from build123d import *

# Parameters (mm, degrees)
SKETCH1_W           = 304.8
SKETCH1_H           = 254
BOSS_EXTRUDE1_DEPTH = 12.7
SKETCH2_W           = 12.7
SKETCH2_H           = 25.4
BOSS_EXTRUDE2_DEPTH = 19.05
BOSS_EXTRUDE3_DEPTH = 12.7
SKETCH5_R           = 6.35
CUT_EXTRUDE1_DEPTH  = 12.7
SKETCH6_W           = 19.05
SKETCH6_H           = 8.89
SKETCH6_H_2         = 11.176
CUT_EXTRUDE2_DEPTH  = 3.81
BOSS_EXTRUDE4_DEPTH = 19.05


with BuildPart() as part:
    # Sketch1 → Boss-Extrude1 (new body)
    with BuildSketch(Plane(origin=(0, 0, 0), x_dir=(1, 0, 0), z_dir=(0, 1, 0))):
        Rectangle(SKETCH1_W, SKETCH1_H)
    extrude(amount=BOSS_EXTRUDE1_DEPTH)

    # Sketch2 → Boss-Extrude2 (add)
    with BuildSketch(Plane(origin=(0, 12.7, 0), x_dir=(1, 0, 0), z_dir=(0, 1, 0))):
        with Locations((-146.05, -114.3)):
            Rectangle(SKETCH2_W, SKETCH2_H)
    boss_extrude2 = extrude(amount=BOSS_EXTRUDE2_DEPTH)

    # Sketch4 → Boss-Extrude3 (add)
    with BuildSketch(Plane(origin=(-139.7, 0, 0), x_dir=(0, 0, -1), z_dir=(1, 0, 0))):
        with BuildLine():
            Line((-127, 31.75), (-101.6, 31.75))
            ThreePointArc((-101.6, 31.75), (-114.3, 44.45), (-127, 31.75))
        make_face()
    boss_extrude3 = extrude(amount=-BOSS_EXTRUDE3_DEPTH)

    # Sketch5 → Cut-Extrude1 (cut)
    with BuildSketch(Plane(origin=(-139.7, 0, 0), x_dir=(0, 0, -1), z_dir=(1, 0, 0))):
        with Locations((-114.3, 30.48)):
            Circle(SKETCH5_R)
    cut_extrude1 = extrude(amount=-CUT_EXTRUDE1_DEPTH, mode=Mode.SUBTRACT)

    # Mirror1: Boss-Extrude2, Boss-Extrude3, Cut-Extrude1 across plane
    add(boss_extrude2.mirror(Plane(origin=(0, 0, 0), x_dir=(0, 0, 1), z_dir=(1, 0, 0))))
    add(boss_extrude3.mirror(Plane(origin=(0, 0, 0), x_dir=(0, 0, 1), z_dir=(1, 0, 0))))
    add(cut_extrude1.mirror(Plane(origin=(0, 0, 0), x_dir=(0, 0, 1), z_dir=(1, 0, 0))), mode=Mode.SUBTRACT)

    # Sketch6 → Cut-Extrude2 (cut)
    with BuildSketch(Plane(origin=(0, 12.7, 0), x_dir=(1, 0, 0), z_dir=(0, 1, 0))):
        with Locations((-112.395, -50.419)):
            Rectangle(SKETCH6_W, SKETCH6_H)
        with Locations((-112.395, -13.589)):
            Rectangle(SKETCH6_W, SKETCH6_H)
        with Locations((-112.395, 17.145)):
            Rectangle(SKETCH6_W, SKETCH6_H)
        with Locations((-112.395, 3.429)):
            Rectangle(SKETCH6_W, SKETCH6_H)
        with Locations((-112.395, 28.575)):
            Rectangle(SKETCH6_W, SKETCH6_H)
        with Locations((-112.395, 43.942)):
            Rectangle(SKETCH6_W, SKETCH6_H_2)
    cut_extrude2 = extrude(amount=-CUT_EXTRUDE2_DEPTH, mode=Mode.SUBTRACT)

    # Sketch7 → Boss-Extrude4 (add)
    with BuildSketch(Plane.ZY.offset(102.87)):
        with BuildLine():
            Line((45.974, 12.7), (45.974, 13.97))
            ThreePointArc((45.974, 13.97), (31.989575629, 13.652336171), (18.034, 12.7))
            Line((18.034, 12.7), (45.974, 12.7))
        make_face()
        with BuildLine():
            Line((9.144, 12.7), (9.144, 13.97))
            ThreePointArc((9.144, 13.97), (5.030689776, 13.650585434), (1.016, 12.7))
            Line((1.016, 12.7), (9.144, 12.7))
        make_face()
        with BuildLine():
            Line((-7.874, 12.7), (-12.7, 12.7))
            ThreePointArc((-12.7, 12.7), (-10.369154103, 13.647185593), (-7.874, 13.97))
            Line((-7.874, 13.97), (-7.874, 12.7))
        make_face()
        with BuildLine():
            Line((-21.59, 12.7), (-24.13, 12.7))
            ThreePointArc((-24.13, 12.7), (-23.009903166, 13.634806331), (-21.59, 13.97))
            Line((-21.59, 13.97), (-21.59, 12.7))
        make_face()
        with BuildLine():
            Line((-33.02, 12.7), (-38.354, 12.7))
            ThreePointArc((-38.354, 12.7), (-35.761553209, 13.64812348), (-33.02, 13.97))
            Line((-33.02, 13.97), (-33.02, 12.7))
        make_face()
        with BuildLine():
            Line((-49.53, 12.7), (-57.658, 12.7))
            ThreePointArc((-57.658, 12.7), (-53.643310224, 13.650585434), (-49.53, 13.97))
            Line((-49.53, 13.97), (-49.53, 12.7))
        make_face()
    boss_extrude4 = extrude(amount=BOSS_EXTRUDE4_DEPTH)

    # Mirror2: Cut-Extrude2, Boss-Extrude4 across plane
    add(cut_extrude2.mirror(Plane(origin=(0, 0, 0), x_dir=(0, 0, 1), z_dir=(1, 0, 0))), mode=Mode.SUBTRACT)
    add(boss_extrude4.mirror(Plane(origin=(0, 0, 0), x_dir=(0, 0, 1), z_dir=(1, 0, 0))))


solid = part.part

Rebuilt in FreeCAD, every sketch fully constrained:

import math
import FreeCAD as App
import Part
import Sketcher

V = App.Vector
Q = App.Units.Quantity

doc = App.newDocument("Part")
params = doc.addObject("Spreadsheet::Sheet", "Params")
for row, (alias, value) in enumerate([
    ("sketch1_width", "12 in"),
    ("sketch1_height", "10 in"),
    ("pad1_length", "0.5 in"),
    ("sketch2_height", "1 in"),
    ("sketch2_width", "0.5 in"),
    ("pad2_length", "0.75 in"),
    ("sketch3_radius", "0.5 in"),
    ("pad3_length", "0.5 in"),
    ("sketch4_diameter", "0.5 in"),
    ("pocket1_length", "0.5 in"),
    ("sketch5_width", "0.75 in"),
    ("sketch5_height", "0.35 in"),
    ("sketch5_height2", "0.44 in"),
    ("pocket2_length", "0.15 in"),
    ("sketch6_height", "1.1 in"),
    ("sketch6_height2", "0.1 in"),
    ("sketch6_radius", "12.125 in"),
    ("sketch6_radius2", "1.049 in"),
    ("sketch6_radius3", "0.386 in"),
    ("pad4_length", "0.75 in"),
], start=1):
    params.set(f"A{row}", alias)
    params.set(f"B{row}", "=" + value)
    params.setAlias(f"B{row}", alias)

body = doc.addObject("PartDesign::Body", "Body")

sketch1 = body.newObject("Sketcher::SketchObject", "Sketch")
sketch1.AttachmentSupport = (doc.getObject("XZ_Plane"), [""])
sketch1.MapMode = "FlatFace"
sketch1.addGeometry(Part.LineSegment(V(-152.4, -127, 0), V(-152.4, 127, 0)), False)
sketch1.addGeometry(Part.LineSegment(V(-152.4, 127, 0), V(152.4, 127, 0)), False)
sketch1.addGeometry(Part.LineSegment(V(152.4, 127, 0), V(152.4, -127, 0)), False)
sketch1.addGeometry(Part.LineSegment(V(152.4, -127, 0), V(-152.4, -127, 0)), False)
sketch1.addConstraint(Sketcher.Constraint("Coincident", 0, 2, 1, 1))
sketch1.addConstraint(Sketcher.Constraint("Coincident", 1, 2, 2, 1))
sketch1.addConstraint(Sketcher.Constraint("Coincident", 2, 2, 3, 1))
sketch1.addConstraint(Sketcher.Constraint("Coincident", 3, 2, 0, 1))
sketch1.addConstraint(Sketcher.Constraint("Vertical", 0))
sketch1.addConstraint(Sketcher.Constraint("Horizontal", 1))
sketch1.addConstraint(Sketcher.Constraint("Vertical", 2))
sketch1.addConstraint(Sketcher.Constraint("Horizontal", 3))
sketch1.addConstraint(Sketcher.Constraint("Symmetric", 0, 2, 2, 2, -1, 1))
sketch1.addConstraint(Sketcher.Constraint("DistanceX", 1, 1, 1, 2, Q("12 in")))
sketch1.addConstraint(Sketcher.Constraint("DistanceY", 0, 1, 0, 2, Q("10 in")))
sketch1.setExpression("Constraints[9]", "Params.sketch1_width")
sketch1.setExpression("Constraints[10]", "Params.sketch1_height")
pad1 = body.newObject("PartDesign::Pad", "Pad")
pad1.Profile = sketch1
pad1.setExpression("Length", "Params.pad1_length")
pad1.Reversed = True

sketch2 = body.newObject("Sketcher::SketchObject", "Sketch001")
sketch2.AttachmentSupport = (doc.getObject("XZ_Plane"), [""])
sketch2.MapMode = "FlatFace"
sketch2.AttachmentOffset = App.Placement(V(0, 0, -0.5 * 25.4), App.Rotation())
sketch2.addGeometry(Part.LineSegment(V(-152.4, 101.6, 0), V(-152.4, 127, 0)), False)
sketch2.addGeometry(Part.LineSegment(V(-152.4, 127, 0), V(-139.7, 127, 0)), False)
sketch2.addGeometry(Part.LineSegment(V(-139.7, 127, 0), V(-139.7, 101.6, 0)), False)
sketch2.addGeometry(Part.LineSegment(V(-139.7, 101.6, 0), V(-152.4, 101.6, 0)), False)
sketch2.addConstraint(Sketcher.Constraint("Coincident", 0, 2, 1, 1))
sketch2.addConstraint(Sketcher.Constraint("Coincident", 1, 2, 2, 1))
sketch2.addConstraint(Sketcher.Constraint("Coincident", 2, 2, 3, 1))
sketch2.addConstraint(Sketcher.Constraint("Coincident", 3, 2, 0, 1))
sketch2.addConstraint(Sketcher.Constraint("Vertical", 0))
sketch2.addConstraint(Sketcher.Constraint("Horizontal", 1))
sketch2.addConstraint(Sketcher.Constraint("Vertical", 2))
sketch2.addConstraint(Sketcher.Constraint("Horizontal", 3))
sketch2.addConstraint(Sketcher.Constraint("DistanceY", 0, 1, 0, 2, Q("1 in")))
sketch2.addConstraint(Sketcher.Constraint("DistanceX", 1, 1, 1, 2, Q("0.5 in")))
sketch2.addConstraint(Sketcher.Constraint("DistanceX", 0, 2, -1, 1, Q("6 in")))
sketch2.addConstraint(Sketcher.Constraint("DistanceY", -1, 1, 0, 2, Q("5 in")))
sketch2.setExpression("Constraints[8]", "Params.sketch2_height")
sketch2.setExpression("Constraints[9]", "Params.sketch2_width")
pad2 = body.newObject("PartDesign::Pad", "Pad001")
pad2.Profile = sketch2
pad2.setExpression("Length", "Params.pad2_length")
pad2.Reversed = True

sketch3 = body.newObject("Sketcher::SketchObject", "Sketch002")
sketch3.AttachmentSupport = (doc.getObject("YZ_Plane"), [""])
sketch3.MapMode = "FlatFace"
sketch3.AttachmentOffset = App.Placement(V(0, 0, -5.5 * 25.4), App.Rotation())
sketch3.addGeometry(Part.LineSegment(V(31.75, 127, 0), V(31.75, 101.6, 0)), False)
sketch3.addGeometry(Part.ArcOfCircle(Part.Circle(V(31.75, 114.3, 0), V(0, 0, 1), 12.7), math.radians(-90), math.radians(90)), False)
sketch3.addConstraint(Sketcher.Constraint("Coincident", 0, 1, 1, 2))
sketch3.addConstraint(Sketcher.Constraint("Coincident", 1, 1, 0, 2))
sketch3.addConstraint(Sketcher.Constraint("Vertical", 0))
sketch3.addConstraint(Sketcher.Constraint("Vertical", 1, 3, 0, 1))
sketch3.addConstraint(Sketcher.Constraint("Radius", 1, Q("0.5 in")))
sketch3.addConstraint(Sketcher.Constraint("DistanceY", -1, 1, 0, 1, Q("5 in")))
sketch3.addConstraint(Sketcher.Constraint("DistanceX", -1, 1, 1, 3, Q("1.25 in")))
sketch3.setExpression("Constraints[4]", "Params.sketch3_radius")
pad3 = body.newObject("PartDesign::Pad", "Pad002")
pad3.Profile = sketch3
pad3.setExpression("Length", "Params.pad3_length")
pad3.Reversed = True

sketch4 = body.newObject("Sketcher::SketchObject", "Sketch003")
sketch4.AttachmentSupport = (doc.getObject("YZ_Plane"), [""])
sketch4.MapMode = "FlatFace"
sketch4.AttachmentOffset = App.Placement(V(0, 0, -5.5 * 25.4), App.Rotation())
sketch4.addGeometry(Part.Circle(V(30.48, 114.3, 0), V(0, 0, 1), 6.35), False)
sketch4.addConstraint(Sketcher.Constraint("Diameter", 0, Q("0.5 in")))
sketch4.addConstraint(Sketcher.Constraint("DistanceX", -1, 1, 0, 3, Q("1.2 in")))
sketch4.addConstraint(Sketcher.Constraint("DistanceY", -1, 1, 0, 3, Q("4.5 in")))
sketch4.setExpression("Constraints[0]", "Params.sketch4_diameter")
pocket1 = body.newObject("PartDesign::Pocket", "Pocket")
pocket1.Profile = sketch4
pocket1.setExpression("Length", "Params.pocket1_length")
doc.recompute()

mirrored = body.newObject("PartDesign::Mirrored", "Mirrored")
mirrored.Originals = [pad2, pad3, pocket1]
mirrored.MirrorPlane = (doc.getObject("YZ_Plane"), [""])
body.Tip = mirrored

sketch5 = body.newObject("Sketcher::SketchObject", "Sketch004")
sketch5.AttachmentSupport = (doc.getObject("XZ_Plane"), [""])
sketch5.MapMode = "FlatFace"
sketch5.AttachmentOffset = App.Placement(V(0, 0, -0.5 * 25.4), App.Rotation())
sketch5.addGeometry(Part.LineSegment(V(-121.92, 45.974, 0), V(-121.92, 54.864, 0)), False)
sketch5.addGeometry(Part.LineSegment(V(-121.92, 54.864, 0), V(-102.87, 54.864, 0)), False)
sketch5.addGeometry(Part.LineSegment(V(-102.87, 54.864, 0), V(-102.87, 45.974, 0)), False)
sketch5.addGeometry(Part.LineSegment(V(-102.87, 45.974, 0), V(-121.92, 45.974, 0)), False)
sketch5.addGeometry(Part.LineSegment(V(-121.92, 9.144, 0), V(-121.92, 18.034, 0)), False)
sketch5.addGeometry(Part.LineSegment(V(-121.92, 18.034, 0), V(-102.87, 18.034, 0)), False)
sketch5.addGeometry(Part.LineSegment(V(-102.87, 18.034, 0), V(-102.87, 9.144, 0)), False)
sketch5.addGeometry(Part.LineSegment(V(-102.87, 9.144, 0), V(-121.92, 9.144, 0)), False)
sketch5.addGeometry(Part.LineSegment(V(-121.92, -21.59, 0), V(-121.92, -12.7, 0)), False)
sketch5.addGeometry(Part.LineSegment(V(-121.92, -12.7, 0), V(-102.87, -12.7, 0)), False)
sketch5.addGeometry(Part.LineSegment(V(-102.87, -12.7, 0), V(-102.87, -21.59, 0)), False)
sketch5.addGeometry(Part.LineSegment(V(-102.87, -21.59, 0), V(-121.92, -21.59, 0)), False)
sketch5.addGeometry(Part.LineSegment(V(-121.92, -7.874, 0), V(-121.92, 1.016, 0)), False)
sketch5.addGeometry(Part.LineSegment(V(-121.92, 1.016, 0), V(-102.87, 1.016, 0)), False)
sketch5.addGeometry(Part.LineSegment(V(-102.87, 1.016, 0), V(-102.87, -7.874, 0)), False)
sketch5.addGeometry(Part.LineSegment(V(-102.87, -7.874, 0), V(-121.92, -7.874, 0)), False)
sketch5.addGeometry(Part.LineSegment(V(-121.92, -33.02, 0), V(-121.92, -24.13, 0)), False)
sketch5.addGeometry(Part.LineSegment(V(-121.92, -24.13, 0), V(-102.87, -24.13, 0)), False)
sketch5.addGeometry(Part.LineSegment(V(-102.87, -24.13, 0), V(-102.87, -33.02, 0)), False)
sketch5.addGeometry(Part.LineSegment(V(-102.87, -33.02, 0), V(-121.92, -33.02, 0)), False)
sketch5.addGeometry(Part.LineSegment(V(-121.92, -49.53, 0), V(-121.92, -38.354, 0)), False)
sketch5.addGeometry(Part.LineSegment(V(-121.92, -38.354, 0), V(-102.87, -38.354, 0)), False)
sketch5.addGeometry(Part.LineSegment(V(-102.87, -38.354, 0), V(-102.87, -49.53, 0)), False)
sketch5.addGeometry(Part.LineSegment(V(-102.87, -49.53, 0), V(-121.92, -49.53, 0)), False)
sketch5.addConstraint(Sketcher.Constraint("Coincident", 0, 2, 1, 1))
sketch5.addConstraint(Sketcher.Constraint("Coincident", 1, 2, 2, 1))
sketch5.addConstraint(Sketcher.Constraint("Coincident", 2, 2, 3, 1))
sketch5.addConstraint(Sketcher.Constraint("Coincident", 3, 2, 0, 1))
sketch5.addConstraint(Sketcher.Constraint("Coincident", 4, 2, 5, 1))
sketch5.addConstraint(Sketcher.Constraint("Coincident", 5, 2, 6, 1))
sketch5.addConstraint(Sketcher.Constraint("Coincident", 6, 2, 7, 1))
sketch5.addConstraint(Sketcher.Constraint("Coincident", 7, 2, 4, 1))
sketch5.addConstraint(Sketcher.Constraint("Coincident", 8, 2, 9, 1))
sketch5.addConstraint(Sketcher.Constraint("Coincident", 9, 2, 10, 1))
sketch5.addConstraint(Sketcher.Constraint("Coincident", 10, 2, 11, 1))
sketch5.addConstraint(Sketcher.Constraint("Coincident", 11, 2, 8, 1))
sketch5.addConstraint(Sketcher.Constraint("Coincident", 12, 2, 13, 1))
sketch5.addConstraint(Sketcher.Constraint("Coincident", 13, 2, 14, 1))
sketch5.addConstraint(Sketcher.Constraint("Coincident", 14, 2, 15, 1))
sketch5.addConstraint(Sketcher.Constraint("Coincident", 15, 2, 12, 1))
sketch5.addConstraint(Sketcher.Constraint("Coincident", 16, 2, 17, 1))
sketch5.addConstraint(Sketcher.Constraint("Coincident", 17, 2, 18, 1))
sketch5.addConstraint(Sketcher.Constraint("Coincident", 18, 2, 19, 1))
sketch5.addConstraint(Sketcher.Constraint("Coincident", 19, 2, 16, 1))
sketch5.addConstraint(Sketcher.Constraint("Coincident", 20, 2, 21, 1))
sketch5.addConstraint(Sketcher.Constraint("Coincident", 21, 2, 22, 1))
sketch5.addConstraint(Sketcher.Constraint("Coincident", 22, 2, 23, 1))
sketch5.addConstraint(Sketcher.Constraint("Coincident", 23, 2, 20, 1))
sketch5.addConstraint(Sketcher.Constraint("Vertical", 0))
sketch5.addConstraint(Sketcher.Constraint("Horizontal", 1))
sketch5.addConstraint(Sketcher.Constraint("Vertical", 2))
sketch5.addConstraint(Sketcher.Constraint("Horizontal", 3))
sketch5.addConstraint(Sketcher.Constraint("Vertical", 4))
sketch5.addConstraint(Sketcher.Constraint("Horizontal", 5))
sketch5.addConstraint(Sketcher.Constraint("Vertical", 6))
sketch5.addConstraint(Sketcher.Constraint("Horizontal", 7))
sketch5.addConstraint(Sketcher.Constraint("Vertical", 8))
sketch5.addConstraint(Sketcher.Constraint("Horizontal", 9))
sketch5.addConstraint(Sketcher.Constraint("Vertical", 10))
sketch5.addConstraint(Sketcher.Constraint("Horizontal", 11))
sketch5.addConstraint(Sketcher.Constraint("Vertical", 12))
sketch5.addConstraint(Sketcher.Constraint("Horizontal", 13))
sketch5.addConstraint(Sketcher.Constraint("Vertical", 14))
sketch5.addConstraint(Sketcher.Constraint("Horizontal", 15))
sketch5.addConstraint(Sketcher.Constraint("Vertical", 16))
sketch5.addConstraint(Sketcher.Constraint("Horizontal", 17))
sketch5.addConstraint(Sketcher.Constraint("Vertical", 18))
sketch5.addConstraint(Sketcher.Constraint("Horizontal", 19))
sketch5.addConstraint(Sketcher.Constraint("Vertical", 20))
sketch5.addConstraint(Sketcher.Constraint("Horizontal", 21))
sketch5.addConstraint(Sketcher.Constraint("Vertical", 22))
sketch5.addConstraint(Sketcher.Constraint("Horizontal", 23))
sketch5.addConstraint(Sketcher.Constraint("Vertical", 3, 2, 4, 2))
sketch5.addConstraint(Sketcher.Constraint("Vertical", 2, 2, 5, 2))
sketch5.addConstraint(Sketcher.Constraint("Vertical", 7, 2, 8, 2))
sketch5.addConstraint(Sketcher.Constraint("Vertical", 6, 2, 9, 2))
sketch5.addConstraint(Sketcher.Constraint("Vertical", 11, 2, 12, 2))
sketch5.addConstraint(Sketcher.Constraint("Vertical", 10, 2, 13, 2))
sketch5.addConstraint(Sketcher.Constraint("Vertical", 15, 2, 16, 2))
sketch5.addConstraint(Sketcher.Constraint("Vertical", 14, 2, 17, 2))
sketch5.addConstraint(Sketcher.Constraint("Vertical", 19, 2, 20, 2))
sketch5.addConstraint(Sketcher.Constraint("Vertical", 18, 2, 21, 2))
sketch5.addConstraint(Sketcher.Constraint("Equal", 2, 4))
sketch5.addConstraint(Sketcher.Constraint("Equal", 6, 8))
sketch5.addConstraint(Sketcher.Constraint("Equal", 10, 12))
sketch5.addConstraint(Sketcher.Constraint("Equal", 14, 16))
sketch5.addConstraint(Sketcher.Constraint("DistanceY", 22, 2, 17, 2, Q("1 in")))
sketch5.addConstraint(Sketcher.Constraint("DistanceX", 1, 1, 1, 2, Q("0.75 in")))
sketch5.addConstraint(Sketcher.Constraint("DistanceY", 0, 1, 0, 2, Q("0.35 in")))
sketch5.addConstraint(Sketcher.Constraint("DistanceY", 20, 1, 20, 2, Q("0.44 in")))
sketch5.addConstraint(Sketcher.Constraint("DistanceX", 0, 2, -1, 1, Q("4.8 in")))
sketch5.addConstraint(Sketcher.Constraint("DistanceY", 8, 2, -1, 1, Q("0.5 in")))
sketch5.addConstraint(Sketcher.Constraint("DistanceY", 18, 2, -1, 1, Q("1.3 in")))
sketch5.addConstraint(Sketcher.Constraint("DistanceY", 4, 2, 3, 2, Q("1.1 in")))
sketch5.addConstraint(Sketcher.Constraint("DistanceY", -1, 1, 0, 2, Q("2.16 in")))
sketch5.addConstraint(Sketcher.Constraint("DistanceY", -1, 1, 12, 2, Q("0.04 in")))
sketch5.setExpression("Constraints[63]", "Params.sketch5_width")
sketch5.setExpression("Constraints[64]", "Params.sketch5_height")
sketch5.setExpression("Constraints[65]", "Params.sketch5_height2")
pocket2 = body.newObject("PartDesign::Pocket", "Pocket001")
pocket2.Profile = sketch5
pocket2.setExpression("Length", "Params.pocket2_length")
pocket2.Reversed = True

sketch6 = body.newObject("Sketcher::SketchObject", "Sketch005")
sketch6.AttachmentSupport = (doc.getObject("YZ_Plane"), [""])
sketch6.MapMode = "FlatFace"
sketch6.AttachmentOffset = App.Placement(V(0, 0, -4.05 * 25.4), App.Rotation())
sketch6.addGeometry(Part.LineSegment(V(12.7, 45.974, 0), V(13.97, 45.974, 0)), False)
sketch6.addGeometry(Part.ArcOfCircle(Part.Circle(V(-294.005, 45.974, 0), V(0, 0, 1), 307.975), math.radians(-5.205124), math.radians(0)), False)
sketch6.addGeometry(Part.LineSegment(V(12.7, 18.034, 0), V(12.7, 45.974, 0)), False)
sketch6.addGeometry(Part.LineSegment(V(12.7, 9.144, 0), V(13.97, 9.144, 0)), False)
sketch6.addGeometry(Part.ArcOfCircle(Part.Circle(V(-12.6746, 9.144, 0), V(0, 0, 1), 26.6446), math.radians(-17.761318), math.radians(0)), False)
sketch6.addGeometry(Part.LineSegment(V(12.7, 1.016, 0), V(12.7, 9.144, 0)), False)
sketch6.addGeometry(Part.LineSegment(V(12.7, -12.7, 0), V(12.7, -7.874, 0)), False)
sketch6.addGeometry(Part.LineSegment(V(12.7, -7.874, 0), V(13.97, -7.874, 0)), False)
sketch6.addGeometry(Part.ArcOfCircle(Part.Circle(V(4.1656, -7.874, 0), V(0, 0, 1), 9.8044), math.radians(-29.487126), math.radians(0)), False)
sketch6.addGeometry(Part.LineSegment(V(12.7, -24.13, 0), V(12.7, -21.59, 0)), False)
sketch6.addGeometry(Part.LineSegment(V(12.7, -21.59, 0), V(13.97, -21.59, 0)), False)
sketch6.addGeometry(Part.ArcOfCircle(Part.Circle(V(10.795, -21.59, 0), V(0, 0, 1), 3.175), math.radians(-53.130102), math.radians(0)), False)
sketch6.addGeometry(Part.LineSegment(V(12.7, -38.354, 0), V(12.7, -33.02, 0)), False)
sketch6.addGeometry(Part.LineSegment(V(12.7, -33.02, 0), V(13.97, -33.02, 0)), False)
sketch6.addGeometry(Part.ArcOfCircle(Part.Circle(V(2.1336, -33.02, 0), V(0, 0, 1), 11.8364), math.radians(-26.784996), math.radians(0)), False)
sketch6.addGeometry(Part.LineSegment(V(12.7, -57.658, 0), V(12.7, -49.53, 0)), False)
sketch6.addGeometry(Part.LineSegment(V(12.7, -49.53, 0), V(13.97, -49.53, 0)), False)
sketch6.addGeometry(Part.ArcOfCircle(Part.Circle(V(-12.6746, -49.53, 0), V(0, 0, 1), 26.6446), math.radians(-17.761318), math.radians(0)), False)
sketch6.addConstraint(Sketcher.Constraint("Coincident", 0, 2, 1, 2))
sketch6.addConstraint(Sketcher.Constraint("Coincident", 1, 1, 2, 1))
sketch6.addConstraint(Sketcher.Constraint("Coincident", 2, 2, 0, 1))
sketch6.addConstraint(Sketcher.Constraint("Coincident", 3, 2, 4, 2))
sketch6.addConstraint(Sketcher.Constraint("Coincident", 4, 1, 5, 1))
sketch6.addConstraint(Sketcher.Constraint("Coincident", 5, 2, 3, 1))
sketch6.addConstraint(Sketcher.Constraint("Coincident", 6, 2, 7, 1))
sketch6.addConstraint(Sketcher.Constraint("Coincident", 7, 2, 8, 2))
sketch6.addConstraint(Sketcher.Constraint("Coincident", 8, 1, 6, 1))
sketch6.addConstraint(Sketcher.Constraint("Coincident", 9, 2, 10, 1))
sketch6.addConstraint(Sketcher.Constraint("Coincident", 10, 2, 11, 2))
sketch6.addConstraint(Sketcher.Constraint("Coincident", 11, 1, 9, 1))
sketch6.addConstraint(Sketcher.Constraint("Coincident", 12, 2, 13, 1))
sketch6.addConstraint(Sketcher.Constraint("Coincident", 13, 2, 14, 2))
sketch6.addConstraint(Sketcher.Constraint("Coincident", 14, 1, 12, 1))
sketch6.addConstraint(Sketcher.Constraint("Coincident", 15, 2, 16, 1))
sketch6.addConstraint(Sketcher.Constraint("Coincident", 16, 2, 17, 2))
sketch6.addConstraint(Sketcher.Constraint("Coincident", 17, 1, 15, 1))
sketch6.addConstraint(Sketcher.Constraint("Horizontal", 0))
sketch6.addConstraint(Sketcher.Constraint("Vertical", 2))
sketch6.addConstraint(Sketcher.Constraint("Horizontal", 3))
sketch6.addConstraint(Sketcher.Constraint("Vertical", 5))
sketch6.addConstraint(Sketcher.Constraint("Vertical", 6))
sketch6.addConstraint(Sketcher.Constraint("Horizontal", 7))
sketch6.addConstraint(Sketcher.Constraint("Vertical", 9))
sketch6.addConstraint(Sketcher.Constraint("Horizontal", 10))
sketch6.addConstraint(Sketcher.Constraint("Vertical", 12))
sketch6.addConstraint(Sketcher.Constraint("Horizontal", 13))
sketch6.addConstraint(Sketcher.Constraint("Vertical", 15))
sketch6.addConstraint(Sketcher.Constraint("Horizontal", 16))
sketch6.addConstraint(Sketcher.Constraint("Equal", 4, 17))
sketch6.addConstraint(Sketcher.Constraint("Horizontal", 1, 3, 0, 2))
sketch6.addConstraint(Sketcher.Constraint("Horizontal", 4, 3, 3, 2))
sketch6.addConstraint(Sketcher.Constraint("Horizontal", 8, 3, 6, 2))
sketch6.addConstraint(Sketcher.Constraint("Horizontal", 11, 3, 9, 2))
sketch6.addConstraint(Sketcher.Constraint("Horizontal", 14, 3, 12, 2))
sketch6.addConstraint(Sketcher.Constraint("Horizontal", 17, 3, 15, 2))
sketch6.addConstraint(Sketcher.Constraint("Vertical", 4, 3, 17, 3))
sketch6.addConstraint(Sketcher.Constraint("Vertical", 0, 2, 3, 2))
sketch6.addConstraint(Sketcher.Constraint("Vertical", 2, 2, 4, 1))
sketch6.addConstraint(Sketcher.Constraint("Vertical", 5, 2, 6, 2))
sketch6.addConstraint(Sketcher.Constraint("Vertical", 3, 2, 7, 2))
sketch6.addConstraint(Sketcher.Constraint("Vertical", 8, 1, 9, 2))
sketch6.addConstraint(Sketcher.Constraint("Vertical", 7, 2, 10, 2))
sketch6.addConstraint(Sketcher.Constraint("Vertical", 11, 1, 12, 2))
sketch6.addConstraint(Sketcher.Constraint("Vertical", 10, 2, 13, 2))
sketch6.addConstraint(Sketcher.Constraint("Vertical", 14, 1, 15, 2))
sketch6.addConstraint(Sketcher.Constraint("DistanceY", 2, 1, 2, 2, Q("1.1 in")))
sketch6.addConstraint(Sketcher.Constraint("DistanceY", 9, 1, 9, 2, Q("0.1 in")))
sketch6.addConstraint(Sketcher.Constraint("Radius", 1, Q("12.125 in")))
sketch6.addConstraint(Sketcher.Constraint("Radius", 4, Q("1.049 in")))
sketch6.addConstraint(Sketcher.Constraint("Radius", 8, Q("0.386 in")))
sketch6.addConstraint(Sketcher.Constraint("Radius", 14, Q("0.466 in")))
sketch6.addConstraint(Sketcher.Constraint("DistanceY", 14, 3, -1, 1, Q("1.3 in")))
sketch6.addConstraint(Sketcher.Constraint("DistanceX", -1, 1, 1, 1, Q("0.5 in")))
sketch6.addConstraint(Sketcher.Constraint("DistanceY", 8, 1, -1, 1, Q("0.5 in")))
sketch6.addConstraint(Sketcher.Constraint("DistanceY", 17, 3, 11, 3, Q("1.1 in")))
sketch6.addConstraint(Sketcher.Constraint("DistanceY", -1, 1, 1, 3, Q("1.81 in")))
sketch6.addConstraint(Sketcher.Constraint("DistanceY", -1, 1, 4, 3, Q("0.36 in")))
sketch6.addConstraint(Sketcher.Constraint("DistanceY", 11, 3, -1, 1, Q("0.85 in")))
sketch6.setExpression("Constraints[47]", "Params.sketch6_height")
sketch6.setExpression("Constraints[48]", "Params.sketch6_height2")
sketch6.setExpression("Constraints[49]", "Params.sketch6_radius")
sketch6.setExpression("Constraints[50]", "Params.sketch6_radius2")
sketch6.setExpression("Constraints[51]", "Params.sketch6_radius3")
pad4 = body.newObject("PartDesign::Pad", "Pad003")
pad4.Profile = sketch6
pad4.setExpression("Length", "Params.pad4_length")
pad4.Reversed = True
doc.recompute()

mirrored2 = body.newObject("PartDesign::Mirrored", "Mirrored001")
mirrored2.Originals = [pocket2, pad4]
mirrored2.MirrorPlane = (doc.getObject("YZ_Plane"), [""])
body.Tip = mirrored2

doc.recompute()
